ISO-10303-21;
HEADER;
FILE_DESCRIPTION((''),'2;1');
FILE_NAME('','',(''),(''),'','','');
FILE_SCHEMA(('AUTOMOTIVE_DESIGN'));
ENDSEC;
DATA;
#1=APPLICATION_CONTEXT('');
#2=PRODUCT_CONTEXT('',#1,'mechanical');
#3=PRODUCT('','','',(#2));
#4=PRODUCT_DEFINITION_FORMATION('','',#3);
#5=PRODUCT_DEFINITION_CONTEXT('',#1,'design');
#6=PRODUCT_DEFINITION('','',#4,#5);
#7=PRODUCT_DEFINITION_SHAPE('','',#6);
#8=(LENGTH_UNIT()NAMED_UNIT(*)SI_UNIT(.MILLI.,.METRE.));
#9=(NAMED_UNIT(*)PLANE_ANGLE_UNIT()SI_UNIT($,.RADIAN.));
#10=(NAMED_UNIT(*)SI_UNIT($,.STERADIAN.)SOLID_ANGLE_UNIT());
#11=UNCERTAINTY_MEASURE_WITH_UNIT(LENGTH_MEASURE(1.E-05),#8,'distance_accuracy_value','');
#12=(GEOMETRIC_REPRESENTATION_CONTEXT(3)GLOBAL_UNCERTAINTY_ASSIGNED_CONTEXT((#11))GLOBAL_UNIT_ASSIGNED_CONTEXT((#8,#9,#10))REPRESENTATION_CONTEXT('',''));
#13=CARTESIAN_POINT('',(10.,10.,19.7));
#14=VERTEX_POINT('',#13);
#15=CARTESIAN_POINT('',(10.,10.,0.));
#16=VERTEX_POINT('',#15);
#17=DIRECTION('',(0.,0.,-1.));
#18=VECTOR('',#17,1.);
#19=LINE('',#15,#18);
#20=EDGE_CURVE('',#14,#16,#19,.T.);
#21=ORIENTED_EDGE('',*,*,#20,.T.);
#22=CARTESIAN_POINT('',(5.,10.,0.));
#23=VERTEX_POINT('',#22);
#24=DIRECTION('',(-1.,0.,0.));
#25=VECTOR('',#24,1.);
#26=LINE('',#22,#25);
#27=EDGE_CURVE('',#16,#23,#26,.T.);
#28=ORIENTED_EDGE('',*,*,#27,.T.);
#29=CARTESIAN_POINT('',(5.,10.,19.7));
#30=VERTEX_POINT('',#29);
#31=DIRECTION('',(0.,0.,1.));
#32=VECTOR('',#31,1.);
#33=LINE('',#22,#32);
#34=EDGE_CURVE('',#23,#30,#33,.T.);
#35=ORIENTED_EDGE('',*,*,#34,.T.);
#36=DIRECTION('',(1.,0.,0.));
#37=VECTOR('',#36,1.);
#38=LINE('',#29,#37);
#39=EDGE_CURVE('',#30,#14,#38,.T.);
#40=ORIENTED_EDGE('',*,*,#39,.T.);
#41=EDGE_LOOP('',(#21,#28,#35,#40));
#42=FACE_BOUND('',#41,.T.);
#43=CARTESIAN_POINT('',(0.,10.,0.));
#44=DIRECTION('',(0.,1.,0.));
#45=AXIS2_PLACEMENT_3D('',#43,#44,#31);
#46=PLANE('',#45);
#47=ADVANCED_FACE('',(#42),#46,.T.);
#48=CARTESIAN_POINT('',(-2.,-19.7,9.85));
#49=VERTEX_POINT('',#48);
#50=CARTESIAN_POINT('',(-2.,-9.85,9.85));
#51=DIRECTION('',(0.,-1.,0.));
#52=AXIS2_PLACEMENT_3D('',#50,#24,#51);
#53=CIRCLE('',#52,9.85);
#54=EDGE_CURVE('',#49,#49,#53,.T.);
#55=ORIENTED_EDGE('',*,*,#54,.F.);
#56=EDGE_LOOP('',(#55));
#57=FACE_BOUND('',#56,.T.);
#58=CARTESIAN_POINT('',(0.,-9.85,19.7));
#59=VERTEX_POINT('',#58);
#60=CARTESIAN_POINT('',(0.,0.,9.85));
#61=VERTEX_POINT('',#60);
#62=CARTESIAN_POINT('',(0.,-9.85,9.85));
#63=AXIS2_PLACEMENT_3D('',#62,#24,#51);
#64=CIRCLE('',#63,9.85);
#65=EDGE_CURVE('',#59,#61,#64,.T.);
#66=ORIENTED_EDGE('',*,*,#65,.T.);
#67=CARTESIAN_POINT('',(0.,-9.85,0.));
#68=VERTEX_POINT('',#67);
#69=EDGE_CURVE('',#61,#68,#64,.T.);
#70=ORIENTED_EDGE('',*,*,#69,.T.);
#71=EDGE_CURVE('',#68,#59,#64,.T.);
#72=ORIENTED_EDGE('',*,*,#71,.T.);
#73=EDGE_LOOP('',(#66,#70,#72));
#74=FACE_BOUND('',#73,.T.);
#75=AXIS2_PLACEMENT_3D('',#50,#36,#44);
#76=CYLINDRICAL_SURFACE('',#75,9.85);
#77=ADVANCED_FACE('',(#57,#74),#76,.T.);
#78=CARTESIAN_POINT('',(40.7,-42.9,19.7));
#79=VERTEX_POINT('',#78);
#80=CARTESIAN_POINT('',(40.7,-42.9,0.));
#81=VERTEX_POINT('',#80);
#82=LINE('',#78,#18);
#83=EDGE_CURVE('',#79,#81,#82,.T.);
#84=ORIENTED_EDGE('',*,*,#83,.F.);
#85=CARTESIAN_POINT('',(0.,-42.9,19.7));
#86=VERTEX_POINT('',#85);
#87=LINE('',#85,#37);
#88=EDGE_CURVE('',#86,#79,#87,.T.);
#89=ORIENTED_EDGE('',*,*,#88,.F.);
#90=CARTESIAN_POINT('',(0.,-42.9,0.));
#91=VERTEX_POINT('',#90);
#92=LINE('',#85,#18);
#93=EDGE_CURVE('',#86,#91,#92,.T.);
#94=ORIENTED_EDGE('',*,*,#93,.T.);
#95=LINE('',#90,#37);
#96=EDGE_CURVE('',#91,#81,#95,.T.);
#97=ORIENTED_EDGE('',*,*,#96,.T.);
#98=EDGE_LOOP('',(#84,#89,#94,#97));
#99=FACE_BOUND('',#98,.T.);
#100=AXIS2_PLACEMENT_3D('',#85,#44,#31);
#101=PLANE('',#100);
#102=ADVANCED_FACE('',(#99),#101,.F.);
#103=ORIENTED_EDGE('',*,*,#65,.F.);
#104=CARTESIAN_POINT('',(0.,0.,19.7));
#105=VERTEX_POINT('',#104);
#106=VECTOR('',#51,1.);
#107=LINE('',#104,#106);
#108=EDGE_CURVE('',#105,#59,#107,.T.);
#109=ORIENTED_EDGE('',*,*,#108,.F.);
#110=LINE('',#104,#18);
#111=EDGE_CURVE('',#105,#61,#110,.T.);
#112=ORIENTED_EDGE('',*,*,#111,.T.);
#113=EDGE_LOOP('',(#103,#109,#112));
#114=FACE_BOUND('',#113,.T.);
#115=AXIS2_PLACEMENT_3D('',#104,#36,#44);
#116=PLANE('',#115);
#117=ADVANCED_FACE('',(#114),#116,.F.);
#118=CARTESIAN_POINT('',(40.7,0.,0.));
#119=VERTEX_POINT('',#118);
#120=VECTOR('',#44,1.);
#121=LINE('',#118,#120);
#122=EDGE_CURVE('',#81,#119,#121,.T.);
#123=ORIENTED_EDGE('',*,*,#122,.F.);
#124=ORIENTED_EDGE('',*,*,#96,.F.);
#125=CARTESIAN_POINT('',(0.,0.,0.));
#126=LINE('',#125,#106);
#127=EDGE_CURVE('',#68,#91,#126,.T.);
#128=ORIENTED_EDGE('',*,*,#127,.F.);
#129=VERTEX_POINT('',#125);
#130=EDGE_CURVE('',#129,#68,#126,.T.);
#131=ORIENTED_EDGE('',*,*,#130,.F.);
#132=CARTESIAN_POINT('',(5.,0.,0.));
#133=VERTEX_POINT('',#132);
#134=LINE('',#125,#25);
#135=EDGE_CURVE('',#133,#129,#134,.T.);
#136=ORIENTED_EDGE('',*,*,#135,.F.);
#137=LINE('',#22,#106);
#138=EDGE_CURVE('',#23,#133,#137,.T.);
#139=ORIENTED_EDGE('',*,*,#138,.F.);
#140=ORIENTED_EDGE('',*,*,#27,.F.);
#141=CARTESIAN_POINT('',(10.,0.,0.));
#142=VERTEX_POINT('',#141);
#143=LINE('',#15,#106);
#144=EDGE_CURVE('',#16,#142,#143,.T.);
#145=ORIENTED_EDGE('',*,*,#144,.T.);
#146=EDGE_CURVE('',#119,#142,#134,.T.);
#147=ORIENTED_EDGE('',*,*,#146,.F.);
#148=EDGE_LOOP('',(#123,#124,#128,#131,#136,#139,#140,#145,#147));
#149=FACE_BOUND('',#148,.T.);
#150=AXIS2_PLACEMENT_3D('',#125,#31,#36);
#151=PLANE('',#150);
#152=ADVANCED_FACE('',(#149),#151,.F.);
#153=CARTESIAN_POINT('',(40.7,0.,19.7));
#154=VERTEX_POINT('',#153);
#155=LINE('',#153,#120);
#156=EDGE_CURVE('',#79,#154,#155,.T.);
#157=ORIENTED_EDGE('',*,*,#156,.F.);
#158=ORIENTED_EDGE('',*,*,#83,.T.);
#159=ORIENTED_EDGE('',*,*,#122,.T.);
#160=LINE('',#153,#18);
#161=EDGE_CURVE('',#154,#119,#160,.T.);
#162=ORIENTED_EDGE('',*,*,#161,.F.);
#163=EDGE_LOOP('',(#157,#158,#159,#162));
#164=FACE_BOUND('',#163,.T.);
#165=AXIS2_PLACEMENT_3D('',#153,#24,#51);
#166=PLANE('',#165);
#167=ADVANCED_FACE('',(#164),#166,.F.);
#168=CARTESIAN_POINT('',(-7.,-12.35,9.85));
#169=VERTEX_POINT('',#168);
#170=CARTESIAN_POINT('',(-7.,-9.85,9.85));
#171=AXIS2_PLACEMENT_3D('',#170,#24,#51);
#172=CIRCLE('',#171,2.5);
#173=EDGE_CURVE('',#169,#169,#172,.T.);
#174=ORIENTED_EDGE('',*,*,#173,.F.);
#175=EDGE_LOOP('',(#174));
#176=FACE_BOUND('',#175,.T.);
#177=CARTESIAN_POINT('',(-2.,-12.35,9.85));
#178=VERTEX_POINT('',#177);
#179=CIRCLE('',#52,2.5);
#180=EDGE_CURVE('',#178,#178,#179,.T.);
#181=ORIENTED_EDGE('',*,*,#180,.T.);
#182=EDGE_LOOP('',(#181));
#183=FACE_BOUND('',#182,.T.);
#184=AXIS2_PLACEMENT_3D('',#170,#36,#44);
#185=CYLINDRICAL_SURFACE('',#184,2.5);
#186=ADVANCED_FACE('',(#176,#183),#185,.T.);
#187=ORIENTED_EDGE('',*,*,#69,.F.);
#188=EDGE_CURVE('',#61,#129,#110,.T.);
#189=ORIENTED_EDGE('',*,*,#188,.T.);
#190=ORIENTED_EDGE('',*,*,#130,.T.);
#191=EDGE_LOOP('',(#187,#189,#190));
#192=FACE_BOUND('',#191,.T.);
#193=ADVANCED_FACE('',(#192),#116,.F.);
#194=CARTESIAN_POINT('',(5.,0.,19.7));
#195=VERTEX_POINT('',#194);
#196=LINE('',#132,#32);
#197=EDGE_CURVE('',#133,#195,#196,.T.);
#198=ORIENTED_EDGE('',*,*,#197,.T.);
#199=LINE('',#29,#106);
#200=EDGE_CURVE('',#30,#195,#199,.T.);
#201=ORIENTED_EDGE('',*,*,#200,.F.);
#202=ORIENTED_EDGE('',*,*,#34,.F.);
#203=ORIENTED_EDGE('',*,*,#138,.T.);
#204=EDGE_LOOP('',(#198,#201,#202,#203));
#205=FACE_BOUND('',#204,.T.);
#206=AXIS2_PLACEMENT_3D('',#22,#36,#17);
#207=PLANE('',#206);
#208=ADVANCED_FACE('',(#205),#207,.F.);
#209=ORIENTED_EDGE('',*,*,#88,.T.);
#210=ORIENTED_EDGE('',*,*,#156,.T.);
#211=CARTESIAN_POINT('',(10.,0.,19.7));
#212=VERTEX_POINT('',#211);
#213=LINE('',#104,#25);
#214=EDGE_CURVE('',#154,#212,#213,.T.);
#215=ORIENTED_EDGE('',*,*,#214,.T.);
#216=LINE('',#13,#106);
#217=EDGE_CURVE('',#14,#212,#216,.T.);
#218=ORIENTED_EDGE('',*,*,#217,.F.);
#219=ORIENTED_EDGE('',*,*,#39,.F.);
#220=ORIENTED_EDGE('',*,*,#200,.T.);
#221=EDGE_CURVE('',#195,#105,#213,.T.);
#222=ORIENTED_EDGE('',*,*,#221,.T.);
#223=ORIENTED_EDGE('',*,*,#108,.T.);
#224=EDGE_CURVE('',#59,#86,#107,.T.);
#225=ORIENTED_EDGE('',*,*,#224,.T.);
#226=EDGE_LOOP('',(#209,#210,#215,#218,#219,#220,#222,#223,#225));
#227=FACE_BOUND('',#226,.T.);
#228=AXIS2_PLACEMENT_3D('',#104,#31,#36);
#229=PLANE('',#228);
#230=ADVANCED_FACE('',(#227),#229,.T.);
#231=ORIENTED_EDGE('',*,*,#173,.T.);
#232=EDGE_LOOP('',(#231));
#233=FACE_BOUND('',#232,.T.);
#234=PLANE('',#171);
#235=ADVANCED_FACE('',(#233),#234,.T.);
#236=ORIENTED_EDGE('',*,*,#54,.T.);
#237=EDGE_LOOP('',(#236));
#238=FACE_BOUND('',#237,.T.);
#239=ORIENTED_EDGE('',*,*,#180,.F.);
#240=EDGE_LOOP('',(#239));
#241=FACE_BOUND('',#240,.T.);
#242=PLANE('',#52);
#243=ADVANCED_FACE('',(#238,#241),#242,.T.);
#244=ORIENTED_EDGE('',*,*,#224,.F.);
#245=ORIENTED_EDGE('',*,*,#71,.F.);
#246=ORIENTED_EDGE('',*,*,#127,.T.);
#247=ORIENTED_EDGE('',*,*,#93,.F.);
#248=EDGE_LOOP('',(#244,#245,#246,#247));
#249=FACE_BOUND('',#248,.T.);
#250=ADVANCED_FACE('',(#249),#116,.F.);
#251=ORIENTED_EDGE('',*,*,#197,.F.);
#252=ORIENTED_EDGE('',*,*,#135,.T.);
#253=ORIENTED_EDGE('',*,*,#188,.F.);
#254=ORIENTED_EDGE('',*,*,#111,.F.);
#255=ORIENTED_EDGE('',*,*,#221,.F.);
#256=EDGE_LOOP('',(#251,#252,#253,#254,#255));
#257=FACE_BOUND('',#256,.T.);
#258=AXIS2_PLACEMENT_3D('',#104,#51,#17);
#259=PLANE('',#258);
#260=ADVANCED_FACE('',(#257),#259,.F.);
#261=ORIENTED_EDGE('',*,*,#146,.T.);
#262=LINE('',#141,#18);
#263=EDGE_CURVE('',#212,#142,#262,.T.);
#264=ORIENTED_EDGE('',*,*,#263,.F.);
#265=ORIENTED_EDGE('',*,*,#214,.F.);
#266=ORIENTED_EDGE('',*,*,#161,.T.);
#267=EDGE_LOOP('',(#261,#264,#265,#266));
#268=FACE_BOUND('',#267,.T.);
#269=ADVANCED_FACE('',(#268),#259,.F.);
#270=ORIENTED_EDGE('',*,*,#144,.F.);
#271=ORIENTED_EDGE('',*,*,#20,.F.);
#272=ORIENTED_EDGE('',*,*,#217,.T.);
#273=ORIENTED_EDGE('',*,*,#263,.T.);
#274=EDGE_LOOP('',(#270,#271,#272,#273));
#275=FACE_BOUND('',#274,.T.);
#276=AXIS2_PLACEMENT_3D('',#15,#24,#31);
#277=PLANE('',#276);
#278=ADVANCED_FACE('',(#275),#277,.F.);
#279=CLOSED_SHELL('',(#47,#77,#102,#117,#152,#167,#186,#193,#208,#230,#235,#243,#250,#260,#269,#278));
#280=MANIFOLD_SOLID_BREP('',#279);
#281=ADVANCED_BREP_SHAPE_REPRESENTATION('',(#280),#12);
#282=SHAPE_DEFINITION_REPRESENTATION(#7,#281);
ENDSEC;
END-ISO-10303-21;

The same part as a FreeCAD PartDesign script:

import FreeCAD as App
import Part
import Sketcher
from FreeCAD import Vector

doc = App.newDocument("Part")
body = doc.addObject("PartDesign::Body", "Body")

# Sketch on XY plane
sketch1 = doc.addObject("Sketcher::SketchObject", "Sketch")
body.addObject(sketch1)
sketch1.AttachmentSupport = (doc.XY_Plane, [""])
sketch1.MapMode = "FlatFace"
sketch1.addGeometry([
    Part.LineSegment(Vector(0, 0, 0), Vector(0, -42.9, 0)),
    Part.LineSegment(Vector(0, -42.9, 0), Vector(40.7, -42.9, 0)),
    Part.LineSegment(Vector(40.7, -42.9, 0), Vector(40.7, 0, 0)),
    Part.LineSegment(Vector(40.7, 0, 0), Vector(0, 0, 0)),
], False)
sketch1.addConstraint([
    Sketcher.Constraint("Coincident", 0, 2, 1, 1),
    Sketcher.Constraint("Coincident", 1, 2, 2, 1),
    Sketcher.Constraint("Coincident", 2, 2, 3, 1),
    Sketcher.Constraint("Coincident", 3, 2, 0, 1),
    Sketcher.Constraint("Vertical", 0),
    Sketcher.Constraint("Horizontal", 1),
    Sketcher.Constraint("Vertical", 2),
    Sketcher.Constraint("Horizontal", 3),
    Sketcher.Constraint("Coincident", 3, 2, -1, 1),
    Sketcher.Constraint("DistanceX", 1, 1, 1, 2, 40.7),
    Sketcher.Constraint("DistanceY", 0, 2, 0, 1, 42.9),
])
pad1 = doc.addObject("PartDesign::Pad", "Pad")
body.addObject(pad1)
pad1.Profile = sketch1
pad1.Length = 19.7

# Sketch on XZ plane
sketch2 = doc.addObject("Sketcher::SketchObject", "Sketch001")
body.addObject(sketch2)
sketch2.AttachmentSupport = (doc.XZ_Plane, [""])
sketch2.MapMode = "FlatFace"
sketch2.addGeometry([
    Part.LineSegment(Vector(5, 0, 0), Vector(5, 19.7, 0)),
    Part.LineSegment(Vector(5, 19.7, 0), Vector(10, 19.7, 0)),
    Part.LineSegment(Vector(10, 19.7, 0), Vector(10, 0, 0)),
    Part.LineSegment(Vector(10, 0, 0), Vector(5, 0, 0)),
], False)
sketch2.addConstraint([
    Sketcher.Constraint("Coincident", 0, 2, 1, 1),
    Sketcher.Constraint("Coincident", 1, 2, 2, 1),
    Sketcher.Constraint("Coincident", 2, 2, 3, 1),
    Sketcher.Constraint("Coincident", 3, 2, 0, 1),
    Sketcher.Constraint("Vertical", 0),
    Sketcher.Constraint("Horizontal", 1),
    Sketcher.Constraint("Vertical", 2),
    Sketcher.Constraint("Horizontal", 3),
    Sketcher.Constraint("PointOnObject", 2, 2, -1),
    Sketcher.Constraint("DistanceX", 1, 1, 1, 2, 5.0),
    Sketcher.Constraint("DistanceY", 0, 1, 0, 2, 19.7),
    Sketcher.Constraint("DistanceX", -1, 1, 0, 2, 5.0),
])
pad2 = doc.addObject("PartDesign::Pad", "Pad001")
body.addObject(pad2)
pad2.Profile = sketch2
pad2.Length = 10
pad2.Reversed = True

# Sketch on YZ plane
sketch3 = doc.addObject("Sketcher::SketchObject", "Sketch002")
body.addObject(sketch3)
sketch3.AttachmentSupport = (doc.YZ_Plane, [""])
sketch3.MapMode = "FlatFace"
sketch3.addGeometry(Part.Circle(Vector(-9.85, 9.85, 0), Vector(0, 0, 1), 9.85), False)
sketch3.addConstraint([
    Sketcher.Constraint("Diameter", 0, 19.7),
    Sketcher.Constraint("DistanceX", 0, 3, -1, 1, 9.85),
    Sketcher.Constraint("DistanceY", -1, 1, 0, 3, 9.85),
])
pad3 = doc.addObject("PartDesign::Pad", "Pad002")
body.addObject(pad3)
pad3.Profile = sketch3
pad3.Length = 2
pad3.Reversed = True

# Sketch on YZ plane
sketch4 = doc.addObject("Sketcher::SketchObject", "Sketch003")
body.addObject(sketch4)
sketch4.AttachmentSupport = (doc.YZ_Plane, [""])
sketch4.MapMode = "FlatFace"
sketch4.AttachmentOffset = App.Placement(Vector(0, 0, -2), App.Rotation())
sketch4.addGeometry(Part.Circle(Vector(-9.85, 9.85, 0), Vector(0, 0, 1), 2.5), False)
sketch4.addConstraint([
    Sketcher.Constraint("Diameter", 0, 5.0),
    Sketcher.Constraint("DistanceX", 0, 3, -1, 1, 9.85),
    Sketcher.Constraint("DistanceY", -1, 1, 0, 3, 9.85),
])
pad4 = doc.addObject("PartDesign::Pad", "Pad003")
body.addObject(pad4)
pad4.Profile = sketch4
pad4.Length = 5
pad4.Reversed = True

doc.recompute()
